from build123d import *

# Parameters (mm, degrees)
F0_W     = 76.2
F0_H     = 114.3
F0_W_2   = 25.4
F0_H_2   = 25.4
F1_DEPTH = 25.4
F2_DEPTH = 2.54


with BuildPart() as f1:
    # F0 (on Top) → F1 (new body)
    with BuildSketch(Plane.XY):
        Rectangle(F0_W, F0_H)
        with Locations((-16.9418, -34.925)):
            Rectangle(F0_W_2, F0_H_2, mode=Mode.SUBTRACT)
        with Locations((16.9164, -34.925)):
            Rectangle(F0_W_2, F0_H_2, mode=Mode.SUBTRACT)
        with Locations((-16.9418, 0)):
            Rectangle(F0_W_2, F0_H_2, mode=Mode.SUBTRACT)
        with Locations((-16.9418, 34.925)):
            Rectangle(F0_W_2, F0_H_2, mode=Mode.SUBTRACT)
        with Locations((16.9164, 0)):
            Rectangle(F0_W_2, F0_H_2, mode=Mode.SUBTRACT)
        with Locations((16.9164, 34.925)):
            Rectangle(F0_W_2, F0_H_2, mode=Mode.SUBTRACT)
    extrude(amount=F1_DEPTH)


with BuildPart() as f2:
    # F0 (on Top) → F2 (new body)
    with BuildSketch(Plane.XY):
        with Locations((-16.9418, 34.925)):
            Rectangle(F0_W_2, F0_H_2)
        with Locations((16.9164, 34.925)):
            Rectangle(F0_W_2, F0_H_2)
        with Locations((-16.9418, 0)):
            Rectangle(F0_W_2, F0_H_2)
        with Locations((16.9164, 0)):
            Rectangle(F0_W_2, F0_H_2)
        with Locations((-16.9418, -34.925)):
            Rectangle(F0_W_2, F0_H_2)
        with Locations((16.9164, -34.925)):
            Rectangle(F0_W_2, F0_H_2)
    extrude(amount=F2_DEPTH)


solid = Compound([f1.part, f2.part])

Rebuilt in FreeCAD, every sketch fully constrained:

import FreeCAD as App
import Part
import Sketcher
Q = App.Units.Quantity

doc = App.newDocument("Part")
params = doc.addObject("Spreadsheet::Sheet", "Params")
for row, (alias, value) in enumerate([
    ("sketch1_width", "3 in"),
    ("sketch1_width2", "1 in"),
    ("sketch1_height", "4.5 in"),
    ("pad1_length", "1 in"),
    ("sketch2_width", "1 in"),
    ("pad2_length", "0.1 in"),
], start=1):
    params.set(f"A{row}", alias)
    params.set(f"B{row}", "=" + value)
    params.setAlias(f"B{row}", alias)

body = doc.addObject("PartDesign::Body", "Body")

# Sketch on XY plane
sketch1 = body.newObject("Sketcher::SketchObject", "Sketch")
sketch1.AttachmentSupport = (doc.getObject("XY_Plane"), [""])
sketch1.MapMode = "FlatFace"
sketch1.addGeometry([
    Part.LineSegment(App.Vector(-38, 57, 0), App.Vector(-38, -57, 0)),  # 0
    Part.LineSegment(App.Vector(-38, -57, 0), App.Vector(38, -57, 0)),  # 1
    Part.LineSegment(App.Vector(38, -57, 0), App.Vector(38, 57, 0)),  # 2
    Part.LineSegment(App.Vector(38, 57, 0), App.Vector(-38, 57, 0)),  # 3
    Part.LineSegment(App.Vector(-4, -48, 0), App.Vector(-30, -48, 0)),  # 4
    Part.LineSegment(App.Vector(-30, -48, 0), App.Vector(-30, -22, 0)),  # 5
    Part.LineSegment(App.Vector(-30, -22, 0), App.Vector(-4, -22, 0)),  # 6
    Part.LineSegment(App.Vector(-4, -22, 0), App.Vector(-4, -48, 0)),  # 7
    Part.LineSegment(App.Vector(30, -48, 0), App.Vector(4, -48, 0)),  # 8
    Part.LineSegment(App.Vector(4, -48, 0), App.Vector(4, -22, 0)),  # 9
    Part.LineSegment(App.Vector(4, -22, 0), App.Vector(30, -22, 0)),  # 10
    Part.LineSegment(App.Vector(30, -22, 0), App.Vector(30, -48, 0)),  # 11
    Part.LineSegment(App.Vector(-4, -13, 0), App.Vector(-30, -13, 0)),  # 12
    Part.LineSegment(App.Vector(-30, -13, 0), App.Vector(-30, 13, 0)),  # 13
    Part.LineSegment(App.Vector(-30, 13, 0), App.Vector(-4, 13, 0)),  # 14
    Part.LineSegment(App.Vector(-4, 13, 0), App.Vector(-4, -13, 0)),  # 15
    Part.LineSegment(App.Vector(-4, 22, 0), App.Vector(-30, 22, 0)),  # 16
    Part.LineSegment(App.Vector(-30, 22, 0), App.Vector(-30, 48, 0)),  # 17
    Part.LineSegment(App.Vector(-30, 48, 0), App.Vector(-4, 48, 0)),  # 18
    Part.LineSegment(App.Vector(-4, 48, 0), App.Vector(-4, 22, 0)),  # 19
    Part.LineSegment(App.Vector(30, -13, 0), App.Vector(4, -13, 0)),  # 20
    Part.LineSegment(App.Vector(4, -13, 0), App.Vector(4, 13, 0)),  # 21
    Part.LineSegment(App.Vector(4, 13, 0), App.Vector(30, 13, 0)),  # 22
    Part.LineSegment(App.Vector(30, 13, 0), App.Vector(30, -13, 0)),  # 23
    Part.LineSegment(App.Vector(30, 22, 0), App.Vector(4, 22, 0)),  # 24
    Part.LineSegment(App.Vector(4, 22, 0), App.Vector(4, 48, 0)),  # 25
    Part.LineSegment(App.Vector(4, 48, 0), App.Vector(30, 48, 0)),  # 26
    Part.LineSegment(App.Vector(30, 48, 0), App.Vector(30, 22, 0)),  # 27
], False)
sketch1.addConstraint([
    Sketcher.Constraint("Coincident", 0, 2, 1, 1),
    Sketcher.Constraint("Coincident", 1, 2, 2, 1),
    Sketcher.Constraint("Coincident", 2, 2, 3, 1),
    Sketcher.Constraint("Coincident", 3, 2, 0, 1),
    Sketcher.Constraint("Coincident", 4, 2, 5, 1),
    Sketcher.Constraint("Coincident", 5, 2, 6, 1),
    Sketcher.Constraint("Coincident", 6, 2, 7, 1),
    Sketcher.Constraint("Coincident", 7, 2, 4, 1),
    Sketcher.Constraint("Coincident", 8, 2, 9, 1),
    Sketcher.Constraint("Coincident", 9, 2, 10, 1),
    Sketcher.Constraint("Coincident", 10, 2, 11, 1),
    Sketcher.Constraint("Coincident", 11, 2, 8, 1),
    Sketcher.Constraint("Coincident", 12, 2, 13, 1),
    Sketcher.Constraint("Coincident", 13, 2, 14, 1),
    Sketcher.Constraint("Coincident", 14, 2, 15, 1),
    Sketcher.Constraint("Coincident", 15, 2, 12, 1),
    Sketcher.Constraint("Coincident", 16, 2, 17, 1),
    Sketcher.Constraint("Coincident", 17, 2, 18, 1),
    Sketcher.Constraint("Coincident", 18, 2, 19, 1),
    Sketcher.Constraint("Coincident", 19, 2, 16, 1),
    Sketcher.Constraint("Coincident", 20, 2, 21, 1),
    Sketcher.Constraint("Coincident", 21, 2, 22, 1),
    Sketcher.Constraint("Coincident", 22, 2, 23, 1),
    Sketcher.Constraint("Coincident", 23, 2, 20, 1),
    Sketcher.Constraint("Coincident", 24, 2, 25, 1),
    Sketcher.Constraint("Coincident", 25, 2, 26, 1),
    Sketcher.Constraint("Coincident", 26, 2, 27, 1),
    Sketcher.Constraint("Coincident", 27, 2, 24, 1),
    Sketcher.Constraint("Vertical", 0),
    Sketcher.Constraint("Horizontal", 1),
    Sketcher.Constraint("Vertical", 2),
    Sketcher.Constraint("Horizontal", 3),
    Sketcher.Constraint("Horizontal", 4),
    Sketcher.Constraint("Vertical", 5),
    Sketcher.Constraint("Horizontal", 6),
    Sketcher.Constraint("Vertical", 7),
    Sketcher.Constraint("Horizontal", 8),
    Sketcher.Constraint("Vertical", 9),
    Sketcher.Constraint("Horizontal", 10),
    Sketcher.Constraint("Vertical", 11),
    Sketcher.Constraint("Horizontal", 12),
    Sketcher.Constraint("Vertical", 13),
    Sketcher.Constraint("Horizontal", 14),
    Sketcher.Constraint("Vertical", 15),
    Sketcher.Constraint("Horizontal", 16),
    Sketcher.Constraint("Vertical", 17),
    Sketcher.Constraint("Horizontal", 18),
    Sketcher.Constraint("Vertical", 19),
    Sketcher.Constraint("Horizontal", 20),
    Sketcher.Constraint("Vertical", 21),
    Sketcher.Constraint("Horizontal", 22),
    Sketcher.Constraint("Vertical", 23),
    Sketcher.Constraint("Horizontal", 24),
    Sketcher.Constraint("Vertical", 25),
    Sketcher.Constraint("Horizontal", 26),
    Sketcher.Constraint("Vertical", 27),
    Sketcher.Constraint("Symmetric", 0, 2, 2, 2, -1, 1),
    Sketcher.Constraint("Symmetric", 5, 2, 16, 2, -1),
    Sketcher.Constraint("Symmetric", 7, 2, 18, 2, -1),
    Sketcher.Constraint("Symmetric", 9, 2, 24, 2, -1),
    Sketcher.Constraint("Symmetric", 11, 2, 26, 2, -1),
    Sketcher.Constraint("Horizontal", 7, 2, 8, 2),
    Sketcher.Constraint("Horizontal", 6, 2, 9, 2),
    Sketcher.Constraint("Horizontal", 15, 2, 20, 2),
    Sketcher.Constraint("Horizontal", 14, 2, 21, 2),
    Sketcher.Constraint("Vertical", 5, 2, 12, 2),
    Sketcher.Constraint("Vertical", 7, 2, 14, 2),
    Sketcher.Constraint("Vertical", 9, 2, 20, 2),
    Sketcher.Constraint("Vertical", 11, 2, 22, 2),
    Sketcher.Constraint("Equal", 6, 8),
    Sketcher.Constraint("Equal", 26, 5),
    Sketcher.Constraint("Equal", 11, 13),
    Sketcher.Constraint("DistanceX", 1, 1, 1, 2, Q("3 in")),
    Sketcher.Constraint("DistanceX", 4, 2, 4, 1, Q("1 in")),
    Sketcher.Constraint("DistanceY", 0, 2, 0, 1, Q("4.5 in")),
    Sketcher.Constraint("DistanceY", 12, 2, -1, 1, Q("0.5 in")),
    Sketcher.Constraint("DistanceX", 4, 2, -1, 1, Q("1.167 in")),
    Sketcher.Constraint("DistanceY", 4, 2, -1, 1, Q("1.875 in")),
    Sketcher.Constraint("DistanceX", -1, 1, 8, 2, Q("0.166 in")),
])
sketch1.setExpression("Constraints[72]", "Params.sketch1_width")
sketch1.setExpression("Constraints[73]", "Params.sketch1_width2")
sketch1.setExpression("Constraints[74]", "Params.sketch1_height")
pad1 = body.newObject("PartDesign::Pad", "Pad")
pad1.Profile = sketch1
pad1.setExpression("Length", "Params.pad1_length")
body2 = doc.addObject("PartDesign::Body", "Body001")
body2.AllowCompound = True

# Sketch on XY plane
sketch2 = body2.newObject("Sketcher::SketchObject", "Sketch001")
sketch2.AttachmentSupport = (doc.getObject("XY_Plane001"), [""])
sketch2.MapMode = "FlatFace"
sketch2.addGeometry([
    Part.LineSegment(App.Vector(-30, 48, 0), App.Vector(-30, 22, 0)),  # 0
    Part.LineSegment(App.Vector(-30, 22, 0), App.Vector(-4, 22, 0)),  # 1
    Part.LineSegment(App.Vector(-4, 22, 0), App.Vector(-4, 48, 0)),  # 2
    Part.LineSegment(App.Vector(-4, 48, 0), App.Vector(-30, 48, 0)),  # 3
    Part.LineSegment(App.Vector(4, 48, 0), App.Vector(4, 22, 0)),  # 4
    Part.LineSegment(App.Vector(4, 22, 0), App.Vector(30, 22, 0)),  # 5
    Part.LineSegment(App.Vector(30, 22, 0), App.Vector(30, 48, 0)),  # 6
    Part.LineSegment(App.Vector(30, 48, 0), App.Vector(4, 48, 0)),  # 7
    Part.LineSegment(App.Vector(-30, 13, 0), App.Vector(-30, -13, 0)),  # 8
    Part.LineSegment(App.Vector(-30, -13, 0), App.Vector(-4, -13, 0)),  # 9
    Part.LineSegment(App.Vector(-4, -13, 0), App.Vector(-4, 13, 0)),  # 10
    Part.LineSegment(App.Vector(-4, 13, 0), App.Vector(-30, 13, 0)),  # 11
    Part.LineSegment(App.Vector(4, 13, 0), App.Vector(4, -13, 0)),  # 12
    Part.LineSegment(App.Vector(4, -13, 0), App.Vector(30, -13, 0)),  # 13
    Part.LineSegment(App.Vector(30, -13, 0), App.Vector(30, 13, 0)),  # 14
    Part.LineSegment(App.Vector(30, 13, 0), App.Vector(4, 13, 0)),  # 15
    Part.LineSegment(App.Vector(-30, -22, 0), App.Vector(-30, -48, 0)),  # 16
    Part.LineSegment(App.Vector(-30, -48, 0), App.Vector(-4, -48, 0)),  # 17
    Part.LineSegment(App.Vector(-4, -48, 0), App.Vector(-4, -22, 0)),  # 18
    Part.LineSegment(App.Vector(-4, -22, 0), App.Vector(-30, -22, 0)),  # 19
    Part.LineSegment(App.Vector(4, -22, 0), App.Vector(4, -48, 0)),  # 20
    Part.LineSegment(App.Vector(4, -48, 0), App.Vector(30, -48, 0)),  # 21
    Part.LineSegment(App.Vector(30, -48, 0), App.Vector(30, -22, 0)),  # 22
    Part.LineSegment(App.Vector(30, -22, 0), App.Vector(4, -22, 0)),  # 23
], False)
sketch2.addConstraint([
    Sketcher.Constraint("Coincident", 0, 2, 1, 1),
    Sketcher.Constraint("Coincident", 1, 2, 2, 1),
    Sketcher.Constraint("Coincident", 2, 2, 3, 1),
    Sketcher.Constraint("Coincident", 3, 2, 0, 1),
    Sketcher.Constraint("Coincident", 4, 2, 5, 1),
    Sketcher.Constraint("Coincident", 5, 2, 6, 1),
    Sketcher.Constraint("Coincident", 6, 2, 7, 1),
    Sketcher.Constraint("Coincident", 7, 2, 4, 1),
    Sketcher.Constraint("Coincident", 8, 2, 9, 1),
    Sketcher.Constraint("Coincident", 9, 2, 10, 1),
    Sketcher.Constraint("Coincident", 10, 2, 11, 1),
    Sketcher.Constraint("Coincident", 11, 2, 8, 1),
    Sketcher.Constraint("Coincident", 12, 2, 13, 1),
    Sketcher.Constraint("Coincident", 13, 2, 14, 1),
    Sketcher.Constraint("Coincident", 14, 2, 15, 1),
    Sketcher.Constraint("Coincident", 15, 2, 12, 1),
    Sketcher.Constraint("Coincident", 16, 2, 17, 1),
    Sketcher.Constraint("Coincident", 17, 2, 18, 1),
    Sketcher.Constraint("Coincident", 18, 2, 19, 1),
    Sketcher.Constraint("Coincident", 19, 2, 16, 1),
    Sketcher.Constraint("Coincident", 20, 2, 21, 1),
    Sketcher.Constraint("Coincident", 21, 2, 22, 1),
    Sketcher.Constraint("Coincident", 22, 2, 23, 1),
    Sketcher.Constraint("Coincident", 23, 2, 20, 1),
    Sketcher.Constraint("Vertical", 0),
    Sketcher.Constraint("Horizontal", 1),
    Sketcher.Constraint("Vertical", 2),
    Sketcher.Constraint("Horizontal", 3),
    Sketcher.Constraint("Vertical", 4),
    Sketcher.Constraint("Horizontal", 5),
    Sketcher.Constraint("Vertical", 6),
    Sketcher.Constraint("Horizontal", 7),
    Sketcher.Constraint("Vertical", 8),
    Sketcher.Constraint("Horizontal", 9),
    Sketcher.Constraint("Vertical", 10),
    Sketcher.Constraint("Horizontal", 11),
    Sketcher.Constraint("Vertical", 12),
    Sketcher.Constraint("Horizontal", 13),
    Sketcher.Constraint("Vertical", 14),
    Sketcher.Constraint("Horizontal", 15),
    Sketcher.Constraint("Vertical", 16),
    Sketcher.Constraint("Horizontal", 17),
    Sketcher.Constraint("Vertical", 18),
    Sketcher.Constraint("Horizontal", 19),
    Sketcher.Constraint("Vertical", 20),
    Sketcher.Constraint("Horizontal", 21),
    Sketcher.Constraint("Vertical", 22),
    Sketcher.Constraint("Horizontal", 23),
    Sketcher.Constraint("Symmetric", 3, 2, 16, 2, -1),
    Sketcher.Constraint("Symmetric", 1, 2, 18, 2, -1),
    Sketcher.Constraint("Symmetric", 7, 2, 20, 2, -1),
    Sketcher.Constraint("Symmetric", 5, 2, 22, 2, -1),
    Sketcher.Constraint("Horizontal", 1, 2, 4, 2),
    Sketcher.Constraint("Horizontal", 3, 2, 6, 2),
    Sketcher.Constraint("Horizontal", 9, 2, 12, 2),
    Sketcher.Constraint("Horizontal", 11, 2, 14, 2),
    Sketcher.Constraint("Vertical", 3, 2, 8, 2),
    Sketcher.Constraint("Vertical", 2, 2, 9, 2),
    Sketcher.Constraint("Vertical", 7, 2, 12, 2),
    Sketcher.Constraint("Vertical", 6, 2, 13, 2),
    Sketcher.Constraint("Equal", 3, 5),
    Sketcher.Constraint("Equal", 23, 0),
    Sketcher.Constraint("Equal", 6, 8),
    Sketcher.Constraint("DistanceX", 1, 1, 1, 2, Q("1 in")),
    Sketcher.Constraint("DistanceY", 8, 2, -1, 1, Q("0.5 in")),
    Sketcher.Constraint("DistanceX", 0, 2, -1, 1, Q("1.167 in")),
    Sketcher.Constraint("DistanceY", -1, 1, 0, 2, Q("0.875 in")),
    Sketcher.Constraint("DistanceX", -1, 1, 4, 2, Q("0.166 in")),
])
sketch2.setExpression("Constraints[63]", "Params.sketch2_width")
pad2 = body2.newObject("PartDesign::Pad", "Pad001")
pad2.Profile = sketch2
pad2.setExpression("Length", "Params.pad2_length")

doc.recompute()
